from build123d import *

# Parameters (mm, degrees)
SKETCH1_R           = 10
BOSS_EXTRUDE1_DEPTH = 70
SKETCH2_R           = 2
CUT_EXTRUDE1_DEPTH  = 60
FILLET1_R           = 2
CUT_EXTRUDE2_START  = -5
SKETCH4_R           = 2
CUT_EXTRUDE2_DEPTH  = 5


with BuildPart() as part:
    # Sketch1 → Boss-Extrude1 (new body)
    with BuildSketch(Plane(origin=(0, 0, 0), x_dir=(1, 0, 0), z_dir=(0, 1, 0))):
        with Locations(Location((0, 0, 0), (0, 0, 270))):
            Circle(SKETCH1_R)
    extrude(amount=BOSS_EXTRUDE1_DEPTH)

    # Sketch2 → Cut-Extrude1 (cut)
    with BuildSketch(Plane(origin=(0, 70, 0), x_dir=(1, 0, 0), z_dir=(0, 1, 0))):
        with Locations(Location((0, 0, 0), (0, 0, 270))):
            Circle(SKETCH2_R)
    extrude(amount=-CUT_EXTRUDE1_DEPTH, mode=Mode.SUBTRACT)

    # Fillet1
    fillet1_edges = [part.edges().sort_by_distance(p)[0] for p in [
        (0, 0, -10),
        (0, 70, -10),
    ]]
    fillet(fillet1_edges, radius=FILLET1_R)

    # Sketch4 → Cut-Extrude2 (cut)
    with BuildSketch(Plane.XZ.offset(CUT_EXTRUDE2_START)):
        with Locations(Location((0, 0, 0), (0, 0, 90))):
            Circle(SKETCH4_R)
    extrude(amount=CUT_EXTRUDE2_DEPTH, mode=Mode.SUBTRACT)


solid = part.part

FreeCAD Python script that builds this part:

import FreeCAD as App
import Part
import Sketcher
from FreeCAD import Vector
Q = App.Units.Quantity


def edges_at(feature, points):
    """Names of the edges that pass closest to the given points."""
    edges = feature.Shape.Edges
    near = lambda p: min(range(len(edges)), key=lambda i: edges[i].distToShape(Part.Vertex(*p))[0])
    return sorted({f"Edge{near(p) + 1}" for p in points})

doc = App.newDocument("Part")
body = doc.addObject("PartDesign::Body", "Body")

# Sketch on XZ plane
sketch1 = doc.addObject("Sketcher::SketchObject", "Sketch")
body.addObject(sketch1)
sketch1.AttachmentSupport = (doc.XZ_Plane, [""])
sketch1.MapMode = "FlatFace"
sketch1.addGeometry(Part.Circle(Vector(0, 0, 0), Vector(0, 0, 1), 10), False)
sketch1.addConstraint([
    Sketcher.Constraint("Coincident", 0, 3, -1, 1),
    Sketcher.Constraint("Diameter", 0, Q("20 mm")),
])
pad1 = doc.addObject("PartDesign::Pad", "Pad")
body.addObject(pad1)
pad1.Profile = sketch1
pad1.Length = 70
pad1.Reversed = True

# Sketch on XZ plane
sketch2 = doc.addObject("Sketcher::SketchObject", "Sketch001")
body.addObject(sketch2)
sketch2.AttachmentSupport = (doc.XZ_Plane, [""])
sketch2.MapMode = "FlatFace"
sketch2.AttachmentOffset = App.Placement(Vector(0, 0, -70), App.Rotation())
sketch2.addGeometry(Part.Circle(Vector(0, 0, 0), Vector(0, 0, 1), 2), False)
sketch2.addConstraint([
    Sketcher.Constraint("Coincident", 0, 3, -1, 1),
    Sketcher.Constraint("Diameter", 0, Q("4 mm")),
])
pocket1 = doc.addObject("PartDesign::Pocket", "Pocket")
body.addObject(pocket1)
pocket1.Profile = sketch2
pocket1.Length = 60
pocket1.Reversed = True
doc.recompute()

fillet = doc.addObject("PartDesign::Fillet", "Fillet")
body.addObject(fillet)
fillet.Base = (pocket1, edges_at(pocket1, [(0, 0, -10), (0, 70, -10)]))
fillet.Radius = 2

# Sketch on XZ plane
sketch3 = doc.addObject("Sketcher::SketchObject", "Sketch002")
body.addObject(sketch3)
sketch3.AttachmentSupport = (doc.XZ_Plane, [""])
sketch3.MapMode = "FlatFace"
sketch3.AttachmentOffset = App.Placement(Vector(0, 0, -5), App.Rotation())
sketch3.addGeometry(Part.Circle(Vector(0, 0, 0), Vector(0, 0, 1), 2), False)
sketch3.addConstraint([
    Sketcher.Constraint("Coincident", 0, 3, -1, 1),
    Sketcher.Constraint("Diameter", 0, Q("4 mm")),
])
pocket2 = doc.addObject("PartDesign::Pocket", "Pocket001")
body.addObject(pocket2)
pocket2.Profile = sketch3
pocket2.Length = 5
pocket2.Reversed = True

doc.recompute()
